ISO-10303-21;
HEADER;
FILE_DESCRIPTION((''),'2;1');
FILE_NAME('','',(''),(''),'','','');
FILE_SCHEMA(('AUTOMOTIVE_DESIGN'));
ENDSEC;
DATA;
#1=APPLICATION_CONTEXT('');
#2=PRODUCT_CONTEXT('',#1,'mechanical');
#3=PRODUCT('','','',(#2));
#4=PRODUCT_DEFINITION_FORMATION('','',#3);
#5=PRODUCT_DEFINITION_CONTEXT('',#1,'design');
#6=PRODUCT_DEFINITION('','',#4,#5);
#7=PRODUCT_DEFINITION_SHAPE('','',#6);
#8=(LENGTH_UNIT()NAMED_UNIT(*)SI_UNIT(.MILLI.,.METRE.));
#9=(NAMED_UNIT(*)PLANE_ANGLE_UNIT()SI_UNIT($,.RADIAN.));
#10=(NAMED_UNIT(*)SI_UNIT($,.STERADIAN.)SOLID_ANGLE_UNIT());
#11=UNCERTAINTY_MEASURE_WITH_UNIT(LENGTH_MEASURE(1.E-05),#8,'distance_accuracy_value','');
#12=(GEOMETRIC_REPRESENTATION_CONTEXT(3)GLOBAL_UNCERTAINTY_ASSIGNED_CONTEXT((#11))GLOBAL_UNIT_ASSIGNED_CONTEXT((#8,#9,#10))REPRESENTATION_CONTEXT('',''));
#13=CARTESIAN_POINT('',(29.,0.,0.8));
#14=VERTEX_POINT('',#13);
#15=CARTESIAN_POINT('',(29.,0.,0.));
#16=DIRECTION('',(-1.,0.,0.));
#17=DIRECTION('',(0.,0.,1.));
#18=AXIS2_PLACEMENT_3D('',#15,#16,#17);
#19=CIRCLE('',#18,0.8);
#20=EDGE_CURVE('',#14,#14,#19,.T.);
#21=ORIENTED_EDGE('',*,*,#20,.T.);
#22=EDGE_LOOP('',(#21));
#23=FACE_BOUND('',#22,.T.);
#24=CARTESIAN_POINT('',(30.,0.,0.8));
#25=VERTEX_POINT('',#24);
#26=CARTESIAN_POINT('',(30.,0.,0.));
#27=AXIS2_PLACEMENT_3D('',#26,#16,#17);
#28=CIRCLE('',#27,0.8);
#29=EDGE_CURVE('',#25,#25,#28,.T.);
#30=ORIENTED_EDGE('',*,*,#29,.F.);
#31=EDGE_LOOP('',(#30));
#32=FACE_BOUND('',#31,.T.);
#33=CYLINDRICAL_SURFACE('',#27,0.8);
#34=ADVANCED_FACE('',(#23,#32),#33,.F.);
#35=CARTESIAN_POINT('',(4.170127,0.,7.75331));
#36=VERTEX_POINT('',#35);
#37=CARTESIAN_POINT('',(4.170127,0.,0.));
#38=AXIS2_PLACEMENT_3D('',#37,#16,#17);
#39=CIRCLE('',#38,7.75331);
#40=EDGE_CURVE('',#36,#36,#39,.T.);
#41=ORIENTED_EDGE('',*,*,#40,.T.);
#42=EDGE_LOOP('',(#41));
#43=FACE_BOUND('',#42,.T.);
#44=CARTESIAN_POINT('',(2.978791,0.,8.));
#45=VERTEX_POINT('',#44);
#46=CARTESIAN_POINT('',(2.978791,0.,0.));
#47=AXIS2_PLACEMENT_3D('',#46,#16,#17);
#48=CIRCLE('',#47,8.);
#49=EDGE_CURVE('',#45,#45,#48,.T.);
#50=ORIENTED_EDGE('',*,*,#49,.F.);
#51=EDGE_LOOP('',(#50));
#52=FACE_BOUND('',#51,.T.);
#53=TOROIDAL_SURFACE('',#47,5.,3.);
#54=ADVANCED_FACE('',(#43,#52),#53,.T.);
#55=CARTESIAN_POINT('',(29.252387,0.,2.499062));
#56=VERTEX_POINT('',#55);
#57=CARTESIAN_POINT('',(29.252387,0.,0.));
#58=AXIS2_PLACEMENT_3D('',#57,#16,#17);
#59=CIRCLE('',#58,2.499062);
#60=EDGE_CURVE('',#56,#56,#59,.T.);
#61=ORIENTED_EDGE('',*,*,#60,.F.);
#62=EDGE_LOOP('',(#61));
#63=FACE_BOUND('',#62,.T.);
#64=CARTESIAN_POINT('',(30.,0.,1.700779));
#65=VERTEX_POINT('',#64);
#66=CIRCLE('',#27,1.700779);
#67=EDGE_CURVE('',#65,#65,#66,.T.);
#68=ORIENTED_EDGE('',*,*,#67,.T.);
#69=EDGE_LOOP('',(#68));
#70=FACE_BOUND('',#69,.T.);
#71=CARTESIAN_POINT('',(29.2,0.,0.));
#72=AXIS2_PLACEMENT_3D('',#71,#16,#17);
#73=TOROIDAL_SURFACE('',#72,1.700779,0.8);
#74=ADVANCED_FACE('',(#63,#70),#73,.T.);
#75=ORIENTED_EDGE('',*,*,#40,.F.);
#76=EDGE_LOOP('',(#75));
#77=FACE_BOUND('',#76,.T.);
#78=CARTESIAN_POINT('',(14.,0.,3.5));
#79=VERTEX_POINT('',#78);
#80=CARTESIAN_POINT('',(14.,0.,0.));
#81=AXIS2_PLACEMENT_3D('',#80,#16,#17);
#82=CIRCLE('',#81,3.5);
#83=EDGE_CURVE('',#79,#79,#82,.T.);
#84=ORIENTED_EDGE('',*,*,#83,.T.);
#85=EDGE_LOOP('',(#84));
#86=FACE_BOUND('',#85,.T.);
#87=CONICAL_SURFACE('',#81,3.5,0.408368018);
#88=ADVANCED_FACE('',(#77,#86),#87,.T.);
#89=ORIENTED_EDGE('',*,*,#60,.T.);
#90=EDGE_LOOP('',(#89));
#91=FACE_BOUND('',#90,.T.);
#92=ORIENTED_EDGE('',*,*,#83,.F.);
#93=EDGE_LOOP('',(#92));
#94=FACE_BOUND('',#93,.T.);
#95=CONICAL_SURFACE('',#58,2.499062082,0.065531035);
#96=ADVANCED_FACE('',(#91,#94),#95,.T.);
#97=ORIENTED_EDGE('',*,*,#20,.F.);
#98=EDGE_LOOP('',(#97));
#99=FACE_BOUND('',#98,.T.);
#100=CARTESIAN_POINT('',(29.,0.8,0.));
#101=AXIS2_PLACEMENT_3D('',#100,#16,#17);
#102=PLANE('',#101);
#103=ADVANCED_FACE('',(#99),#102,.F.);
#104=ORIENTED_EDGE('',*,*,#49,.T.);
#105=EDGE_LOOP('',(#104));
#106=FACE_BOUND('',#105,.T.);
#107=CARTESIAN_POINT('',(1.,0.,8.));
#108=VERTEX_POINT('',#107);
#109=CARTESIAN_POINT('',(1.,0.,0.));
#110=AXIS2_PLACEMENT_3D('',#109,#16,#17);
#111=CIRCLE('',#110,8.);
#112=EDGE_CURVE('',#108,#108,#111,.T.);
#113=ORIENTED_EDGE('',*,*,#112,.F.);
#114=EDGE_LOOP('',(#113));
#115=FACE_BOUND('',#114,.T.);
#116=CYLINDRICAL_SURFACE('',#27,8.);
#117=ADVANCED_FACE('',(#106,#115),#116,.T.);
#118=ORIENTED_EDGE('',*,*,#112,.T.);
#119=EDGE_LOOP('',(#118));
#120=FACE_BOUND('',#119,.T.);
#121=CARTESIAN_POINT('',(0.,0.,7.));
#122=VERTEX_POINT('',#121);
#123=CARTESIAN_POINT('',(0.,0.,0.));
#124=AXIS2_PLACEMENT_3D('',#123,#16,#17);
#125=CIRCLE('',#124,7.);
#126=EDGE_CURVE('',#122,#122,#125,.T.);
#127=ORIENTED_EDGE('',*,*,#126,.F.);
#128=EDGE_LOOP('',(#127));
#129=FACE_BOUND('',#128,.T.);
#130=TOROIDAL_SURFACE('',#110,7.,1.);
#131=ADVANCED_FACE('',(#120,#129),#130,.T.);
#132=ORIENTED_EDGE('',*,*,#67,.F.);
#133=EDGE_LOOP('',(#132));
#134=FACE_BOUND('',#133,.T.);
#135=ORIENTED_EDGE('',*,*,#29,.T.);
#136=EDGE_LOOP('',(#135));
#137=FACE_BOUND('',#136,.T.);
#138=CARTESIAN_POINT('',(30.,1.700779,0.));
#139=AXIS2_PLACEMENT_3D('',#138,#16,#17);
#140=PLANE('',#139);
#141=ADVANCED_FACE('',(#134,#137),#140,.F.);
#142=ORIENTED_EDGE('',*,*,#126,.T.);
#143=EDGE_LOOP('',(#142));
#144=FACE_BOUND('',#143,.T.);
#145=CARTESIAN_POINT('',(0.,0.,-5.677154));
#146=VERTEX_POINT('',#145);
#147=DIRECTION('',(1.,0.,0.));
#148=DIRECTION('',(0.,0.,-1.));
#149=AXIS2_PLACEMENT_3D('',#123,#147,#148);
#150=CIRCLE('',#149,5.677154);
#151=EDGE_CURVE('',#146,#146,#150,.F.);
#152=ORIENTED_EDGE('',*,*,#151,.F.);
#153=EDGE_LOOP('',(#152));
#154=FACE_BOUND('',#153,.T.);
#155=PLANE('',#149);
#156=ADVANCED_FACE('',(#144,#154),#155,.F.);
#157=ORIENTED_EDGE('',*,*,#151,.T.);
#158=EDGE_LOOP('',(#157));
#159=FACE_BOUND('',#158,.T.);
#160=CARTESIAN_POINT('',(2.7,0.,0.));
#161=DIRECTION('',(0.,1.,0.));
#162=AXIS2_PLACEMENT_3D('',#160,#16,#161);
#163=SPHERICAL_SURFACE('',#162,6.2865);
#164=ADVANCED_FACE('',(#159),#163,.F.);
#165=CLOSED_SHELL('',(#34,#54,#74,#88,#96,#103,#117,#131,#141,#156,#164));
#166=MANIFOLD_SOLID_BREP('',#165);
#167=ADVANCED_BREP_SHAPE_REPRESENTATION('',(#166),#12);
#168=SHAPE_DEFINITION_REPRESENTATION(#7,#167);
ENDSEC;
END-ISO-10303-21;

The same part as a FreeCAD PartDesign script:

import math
import FreeCAD as App
import Part
import Sketcher

doc = App.newDocument("Part")
body = doc.addObject("PartDesign::Body", "Body")

# Sketch on XY plane
sketch1 = body.newObject("Sketcher::SketchObject", "Sketch")
sketch1.AttachmentSupport = (doc.getObject("XY_Plane"), [""])
sketch1.MapMode = "FlatFace"
sketch1.addGeometry(Part.LineSegment(App.Vector(0, 7, 0), App.Vector(0, 0, 0)), False)
sketch1.addGeometry(Part.LineSegment(App.Vector(0, 0, 0), App.Vector(29, 0, 0)), False)
sketch1.addGeometry(Part.LineSegment(App.Vector(29, 0, 0), App.Vector(29, 0.8, 0)), False)
sketch1.addGeometry(Part.LineSegment(App.Vector(29, 0.8, 0), App.Vector(30, 0.8, 0)), False)
sketch1.addGeometry(Part.LineSegment(App.Vector(30, 0.8, 0), App.Vector(30, 1.7, 0)), False)
sketch1.addGeometry(Part.ArcOfCircle(Part.Circle(App.Vector(29.2, 1.7, 0), App.Vector(0, 0, 1), 0.8), math.radians(0), math.radians(86)), False)
sketch1.addGeometry(Part.LineSegment(App.Vector(29.3, 2.5, 0), App.Vector(14, 3.5, 0)), False)
sketch1.addGeometry(Part.LineSegment(App.Vector(14, 3.5, 0), App.Vector(4.2, 7.8, 0)), False)
sketch1.addGeometry(Part.ArcOfCircle(Part.Circle(App.Vector(3, 5, 0), App.Vector(0, 0, 1), 3), math.radians(67), math.radians(90)), False)
sketch1.addGeometry(Part.LineSegment(App.Vector(3, 8, 0), App.Vector(1, 8, 0)), False)
sketch1.addGeometry(Part.ArcOfCircle(Part.Circle(App.Vector(1, 7, 0), App.Vector(0, 0, 1), 1), math.radians(90), math.radians(180)), False)
sketch1.addConstraint(Sketcher.Constraint("Coincident", 0, 2, 1, 1))
sketch1.addConstraint(Sketcher.Constraint("Coincident", 1, 2, 2, 1))
sketch1.addConstraint(Sketcher.Constraint("Coincident", 2, 2, 3, 1))
sketch1.addConstraint(Sketcher.Constraint("Coincident", 3, 2, 4, 1))
sketch1.addConstraint(Sketcher.Constraint("Tangent", 4, 2, 5, 1))
sketch1.addConstraint(Sketcher.Constraint("Tangent", 5, 2, 6, 1))
sketch1.addConstraint(Sketcher.Constraint("Coincident", 6, 2, 7, 1))
sketch1.addConstraint(Sketcher.Constraint("Tangent", 7, 2, 8, 1))
sketch1.addConstraint(Sketcher.Constraint("Tangent", 8, 2, 9, 1))
sketch1.addConstraint(Sketcher.Constraint("Tangent", 9, 2, 10, 1))
sketch1.addConstraint(Sketcher.Constraint("Tangent", 10, 2, 0, 1))
sketch1.addConstraint(Sketcher.Constraint("Vertical", 0))
sketch1.addConstraint(Sketcher.Constraint("Horizontal", 1))
sketch1.addConstraint(Sketcher.Constraint("Vertical", 2))
sketch1.addConstraint(Sketcher.Constraint("Horizontal", 3))
sketch1.addConstraint(Sketcher.Constraint("Vertical", 4))
sketch1.addConstraint(Sketcher.Constraint("Horizontal", 9))
sketch1.addConstraint(Sketcher.Constraint("Coincident", 0, 2, -1, 1))
sketch1.addConstraint(Sketcher.Constraint("Radius", 8, 3.0))
sketch1.addConstraint(Sketcher.Constraint("Radius", 10, 1.0))
sketch1.addConstraint(Sketcher.Constraint("Radius", 5, 0.8))
sketch1.addConstraint(Sketcher.Constraint("DistanceX", 1, 1, 1, 2, 29.0))
sketch1.addConstraint(Sketcher.Constraint("DistanceX", 3, 1, 3, 2, 1.0))
sketch1.addConstraint(Sketcher.Constraint("DistanceY", 0, 2, 0, 1, 7.0))
sketch1.addConstraint(Sketcher.Constraint("DistanceY", 2, 1, 2, 2, 0.8))
sketch1.addConstraint(Sketcher.Constraint("DistanceX", -1, 1, 6, 2, 14.0))
sketch1.addConstraint(Sketcher.Constraint("DistanceY", -1, 1, 6, 2, 3.5))
sketch1.addConstraint(Sketcher.Constraint("DistanceX", 9, 2, 9, 1, 1.978791))
sketch1.addConstraint(Sketcher.Constraint("DistanceY", 4, 1, 4, 2, 0.900779))
revolution = body.newObject("PartDesign::Revolution", "Revolution")
revolution.Profile = sketch1
revolution.ReferenceAxis = (sketch1, ["H_Axis"])
revolution.Angle = 360

# Sketch on XY plane
sketch2 = body.newObject("Sketcher::SketchObject", "Sketch001")
sketch2.AttachmentSupport = (doc.getObject("XY_Plane"), [""])
sketch2.MapMode = "FlatFace"
sketch2.addGeometry(Part.LineSegment(App.Vector(-4, 0, 0), App.Vector(9, 0, 0)), False)
sketch2.addGeometry(Part.ArcOfCircle(Part.Circle(App.Vector(3, 0, 0), App.Vector(0, 0, 1), 6), math.radians(0), math.radians(180)), False)
sketch2.addConstraint(Sketcher.Constraint("Coincident", 0, 1, 1, 2))
sketch2.addConstraint(Sketcher.Constraint("Coincident", 1, 1, 0, 2))
sketch2.addConstraint(Sketcher.Constraint("Horizontal", 0))
sketch2.addConstraint(Sketcher.Constraint("PointOnObject", 1, 3, -1))
sketch2.addConstraint(Sketcher.Constraint("PointOnObject", 0, 1, -1))
sketch2.addConstraint(Sketcher.Constraint("DistanceX", -1, 1, 1, 3, 2.7))
sketch2.addConstraint(Sketcher.Constraint("Radius", 1, 6.2865))
groove = body.newObject("PartDesign::Groove", "Groove")
groove.Profile = sketch2
groove.ReferenceAxis = (sketch2, ["H_Axis"])
groove.Angle = 360

doc.recompute()
